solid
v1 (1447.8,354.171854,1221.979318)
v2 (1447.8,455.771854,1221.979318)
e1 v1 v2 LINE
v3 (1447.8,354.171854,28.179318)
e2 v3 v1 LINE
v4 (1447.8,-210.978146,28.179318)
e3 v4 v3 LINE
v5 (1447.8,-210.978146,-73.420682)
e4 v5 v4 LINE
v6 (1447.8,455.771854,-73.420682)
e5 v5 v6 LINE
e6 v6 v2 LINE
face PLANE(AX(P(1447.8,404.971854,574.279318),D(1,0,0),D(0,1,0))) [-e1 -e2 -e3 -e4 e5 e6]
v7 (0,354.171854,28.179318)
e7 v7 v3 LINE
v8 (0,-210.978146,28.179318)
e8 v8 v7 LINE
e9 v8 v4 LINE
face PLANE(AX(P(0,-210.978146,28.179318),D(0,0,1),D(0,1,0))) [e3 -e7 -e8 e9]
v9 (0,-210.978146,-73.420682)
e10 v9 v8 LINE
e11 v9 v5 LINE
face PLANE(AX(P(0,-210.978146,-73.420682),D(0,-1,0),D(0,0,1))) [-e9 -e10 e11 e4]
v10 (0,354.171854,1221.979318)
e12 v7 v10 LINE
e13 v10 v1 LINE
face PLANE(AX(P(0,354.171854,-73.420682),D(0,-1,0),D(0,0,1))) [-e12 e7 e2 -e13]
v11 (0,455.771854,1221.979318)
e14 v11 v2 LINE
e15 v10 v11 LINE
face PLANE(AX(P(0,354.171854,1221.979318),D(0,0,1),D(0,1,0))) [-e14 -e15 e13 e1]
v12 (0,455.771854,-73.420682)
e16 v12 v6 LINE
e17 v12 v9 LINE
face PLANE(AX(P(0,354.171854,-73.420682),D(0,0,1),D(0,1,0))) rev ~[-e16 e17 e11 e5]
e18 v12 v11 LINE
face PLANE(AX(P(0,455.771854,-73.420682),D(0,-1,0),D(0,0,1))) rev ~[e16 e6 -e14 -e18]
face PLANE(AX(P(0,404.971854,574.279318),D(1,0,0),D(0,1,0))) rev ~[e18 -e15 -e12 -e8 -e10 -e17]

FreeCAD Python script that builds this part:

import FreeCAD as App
import Part
import Sketcher
Q = App.Units.Quantity

doc = App.newDocument("Part")
body = doc.addObject("PartDesign::Body", "Body")

sketch1 = doc.addObject("Sketcher::SketchObject", "Sketch")
body.addObject(sketch1)
sketch1.AttachmentSupport = (doc.YZ_Plane, [""])
sketch1.MapMode = "FlatFace"
sketch1.addGeometry([
    Part.LineSegment(App.Vector(-211, 28, 0), App.Vector(-211, -73, 0)),
    Part.LineSegment(App.Vector(-211, -73, 0), App.Vector(354, -73, 0)),
    Part.LineSegment(App.Vector(354, -73, 0), App.Vector(354, 28, 0)),
    Part.LineSegment(App.Vector(354, 28, 0), App.Vector(-211, 28, 0)),
], False)
sketch1.addConstraint([
    Sketcher.Constraint("Coincident", 0, 2, 1, 1),
    Sketcher.Constraint("Coincident", 1, 2, 2, 1),
    Sketcher.Constraint("Coincident", 2, 2, 3, 1),
    Sketcher.Constraint("Coincident", 3, 2, 0, 1),
    Sketcher.Constraint("Vertical", 0),
    Sketcher.Constraint("Horizontal", 1),
    Sketcher.Constraint("Vertical", 2),
    Sketcher.Constraint("Horizontal", 3),
    Sketcher.Constraint("DistanceY", 0, 2, 0, 1, Q("4 in")),
    Sketcher.Constraint("DistanceX", 1, 1, 1, 2, Q("22.25 in")),
    Sketcher.Constraint("DistanceY", 0, 2, -1, 1, 73.420682),
    Sketcher.Constraint("DistanceX", 0, 2, -1, 1, 210.978146),
])
pad1 = doc.addObject("PartDesign::Pad", "Pad")
body.addObject(pad1)
pad1.Profile = sketch1
pad1.Length = Q("57 in")

sketch2 = doc.addObject("Sketcher::SketchObject", "Sketch001")
body.addObject(sketch2)
sketch2.AttachmentSupport = (doc.YZ_Plane, [""])
sketch2.MapMode = "FlatFace"
sketch2.addGeometry([
    Part.LineSegment(App.Vector(354, 1222, 0), App.Vector(354, -73, 0)),
    Part.LineSegment(App.Vector(354, -73, 0), App.Vector(456, -73, 0)),
    Part.LineSegment(App.Vector(456, -73, 0), App.Vector(456, 1222, 0)),
    Part.LineSegment(App.Vector(456, 1222, 0), App.Vector(354, 1222, 0)),
], False)
sketch2.addConstraint([
    Sketcher.Constraint("Coincident", 0, 2, 1, 1),
    Sketcher.Constraint("Coincident", 1, 2, 2, 1),
    Sketcher.Constraint("Coincident", 2, 2, 3, 1),
    Sketcher.Constraint("Coincident", 3, 2, 0, 1),
    Sketcher.Constraint("Vertical", 0),
    Sketcher.Constraint("Horizontal", 1),
    Sketcher.Constraint("Vertical", 2),
    Sketcher.Constraint("Horizontal", 3),
    Sketcher.Constraint("DistanceX", 1, 1, 1, 2, Q("4 in")),
    Sketcher.Constraint("DistanceY", 0, 2, 0, 1, Q("51 in")),
    Sketcher.Constraint("DistanceY", 0, 2, -1, 1, 73.420682),
    Sketcher.Constraint("DistanceX", -1, 1, 0, 2, 354.171854),
])
pad2 = doc.addObject("PartDesign::Pad", "Pad001")
body.addObject(pad2)
pad2.Profile = sketch2
pad2.Length = Q("57 in")

doc.recompute()
